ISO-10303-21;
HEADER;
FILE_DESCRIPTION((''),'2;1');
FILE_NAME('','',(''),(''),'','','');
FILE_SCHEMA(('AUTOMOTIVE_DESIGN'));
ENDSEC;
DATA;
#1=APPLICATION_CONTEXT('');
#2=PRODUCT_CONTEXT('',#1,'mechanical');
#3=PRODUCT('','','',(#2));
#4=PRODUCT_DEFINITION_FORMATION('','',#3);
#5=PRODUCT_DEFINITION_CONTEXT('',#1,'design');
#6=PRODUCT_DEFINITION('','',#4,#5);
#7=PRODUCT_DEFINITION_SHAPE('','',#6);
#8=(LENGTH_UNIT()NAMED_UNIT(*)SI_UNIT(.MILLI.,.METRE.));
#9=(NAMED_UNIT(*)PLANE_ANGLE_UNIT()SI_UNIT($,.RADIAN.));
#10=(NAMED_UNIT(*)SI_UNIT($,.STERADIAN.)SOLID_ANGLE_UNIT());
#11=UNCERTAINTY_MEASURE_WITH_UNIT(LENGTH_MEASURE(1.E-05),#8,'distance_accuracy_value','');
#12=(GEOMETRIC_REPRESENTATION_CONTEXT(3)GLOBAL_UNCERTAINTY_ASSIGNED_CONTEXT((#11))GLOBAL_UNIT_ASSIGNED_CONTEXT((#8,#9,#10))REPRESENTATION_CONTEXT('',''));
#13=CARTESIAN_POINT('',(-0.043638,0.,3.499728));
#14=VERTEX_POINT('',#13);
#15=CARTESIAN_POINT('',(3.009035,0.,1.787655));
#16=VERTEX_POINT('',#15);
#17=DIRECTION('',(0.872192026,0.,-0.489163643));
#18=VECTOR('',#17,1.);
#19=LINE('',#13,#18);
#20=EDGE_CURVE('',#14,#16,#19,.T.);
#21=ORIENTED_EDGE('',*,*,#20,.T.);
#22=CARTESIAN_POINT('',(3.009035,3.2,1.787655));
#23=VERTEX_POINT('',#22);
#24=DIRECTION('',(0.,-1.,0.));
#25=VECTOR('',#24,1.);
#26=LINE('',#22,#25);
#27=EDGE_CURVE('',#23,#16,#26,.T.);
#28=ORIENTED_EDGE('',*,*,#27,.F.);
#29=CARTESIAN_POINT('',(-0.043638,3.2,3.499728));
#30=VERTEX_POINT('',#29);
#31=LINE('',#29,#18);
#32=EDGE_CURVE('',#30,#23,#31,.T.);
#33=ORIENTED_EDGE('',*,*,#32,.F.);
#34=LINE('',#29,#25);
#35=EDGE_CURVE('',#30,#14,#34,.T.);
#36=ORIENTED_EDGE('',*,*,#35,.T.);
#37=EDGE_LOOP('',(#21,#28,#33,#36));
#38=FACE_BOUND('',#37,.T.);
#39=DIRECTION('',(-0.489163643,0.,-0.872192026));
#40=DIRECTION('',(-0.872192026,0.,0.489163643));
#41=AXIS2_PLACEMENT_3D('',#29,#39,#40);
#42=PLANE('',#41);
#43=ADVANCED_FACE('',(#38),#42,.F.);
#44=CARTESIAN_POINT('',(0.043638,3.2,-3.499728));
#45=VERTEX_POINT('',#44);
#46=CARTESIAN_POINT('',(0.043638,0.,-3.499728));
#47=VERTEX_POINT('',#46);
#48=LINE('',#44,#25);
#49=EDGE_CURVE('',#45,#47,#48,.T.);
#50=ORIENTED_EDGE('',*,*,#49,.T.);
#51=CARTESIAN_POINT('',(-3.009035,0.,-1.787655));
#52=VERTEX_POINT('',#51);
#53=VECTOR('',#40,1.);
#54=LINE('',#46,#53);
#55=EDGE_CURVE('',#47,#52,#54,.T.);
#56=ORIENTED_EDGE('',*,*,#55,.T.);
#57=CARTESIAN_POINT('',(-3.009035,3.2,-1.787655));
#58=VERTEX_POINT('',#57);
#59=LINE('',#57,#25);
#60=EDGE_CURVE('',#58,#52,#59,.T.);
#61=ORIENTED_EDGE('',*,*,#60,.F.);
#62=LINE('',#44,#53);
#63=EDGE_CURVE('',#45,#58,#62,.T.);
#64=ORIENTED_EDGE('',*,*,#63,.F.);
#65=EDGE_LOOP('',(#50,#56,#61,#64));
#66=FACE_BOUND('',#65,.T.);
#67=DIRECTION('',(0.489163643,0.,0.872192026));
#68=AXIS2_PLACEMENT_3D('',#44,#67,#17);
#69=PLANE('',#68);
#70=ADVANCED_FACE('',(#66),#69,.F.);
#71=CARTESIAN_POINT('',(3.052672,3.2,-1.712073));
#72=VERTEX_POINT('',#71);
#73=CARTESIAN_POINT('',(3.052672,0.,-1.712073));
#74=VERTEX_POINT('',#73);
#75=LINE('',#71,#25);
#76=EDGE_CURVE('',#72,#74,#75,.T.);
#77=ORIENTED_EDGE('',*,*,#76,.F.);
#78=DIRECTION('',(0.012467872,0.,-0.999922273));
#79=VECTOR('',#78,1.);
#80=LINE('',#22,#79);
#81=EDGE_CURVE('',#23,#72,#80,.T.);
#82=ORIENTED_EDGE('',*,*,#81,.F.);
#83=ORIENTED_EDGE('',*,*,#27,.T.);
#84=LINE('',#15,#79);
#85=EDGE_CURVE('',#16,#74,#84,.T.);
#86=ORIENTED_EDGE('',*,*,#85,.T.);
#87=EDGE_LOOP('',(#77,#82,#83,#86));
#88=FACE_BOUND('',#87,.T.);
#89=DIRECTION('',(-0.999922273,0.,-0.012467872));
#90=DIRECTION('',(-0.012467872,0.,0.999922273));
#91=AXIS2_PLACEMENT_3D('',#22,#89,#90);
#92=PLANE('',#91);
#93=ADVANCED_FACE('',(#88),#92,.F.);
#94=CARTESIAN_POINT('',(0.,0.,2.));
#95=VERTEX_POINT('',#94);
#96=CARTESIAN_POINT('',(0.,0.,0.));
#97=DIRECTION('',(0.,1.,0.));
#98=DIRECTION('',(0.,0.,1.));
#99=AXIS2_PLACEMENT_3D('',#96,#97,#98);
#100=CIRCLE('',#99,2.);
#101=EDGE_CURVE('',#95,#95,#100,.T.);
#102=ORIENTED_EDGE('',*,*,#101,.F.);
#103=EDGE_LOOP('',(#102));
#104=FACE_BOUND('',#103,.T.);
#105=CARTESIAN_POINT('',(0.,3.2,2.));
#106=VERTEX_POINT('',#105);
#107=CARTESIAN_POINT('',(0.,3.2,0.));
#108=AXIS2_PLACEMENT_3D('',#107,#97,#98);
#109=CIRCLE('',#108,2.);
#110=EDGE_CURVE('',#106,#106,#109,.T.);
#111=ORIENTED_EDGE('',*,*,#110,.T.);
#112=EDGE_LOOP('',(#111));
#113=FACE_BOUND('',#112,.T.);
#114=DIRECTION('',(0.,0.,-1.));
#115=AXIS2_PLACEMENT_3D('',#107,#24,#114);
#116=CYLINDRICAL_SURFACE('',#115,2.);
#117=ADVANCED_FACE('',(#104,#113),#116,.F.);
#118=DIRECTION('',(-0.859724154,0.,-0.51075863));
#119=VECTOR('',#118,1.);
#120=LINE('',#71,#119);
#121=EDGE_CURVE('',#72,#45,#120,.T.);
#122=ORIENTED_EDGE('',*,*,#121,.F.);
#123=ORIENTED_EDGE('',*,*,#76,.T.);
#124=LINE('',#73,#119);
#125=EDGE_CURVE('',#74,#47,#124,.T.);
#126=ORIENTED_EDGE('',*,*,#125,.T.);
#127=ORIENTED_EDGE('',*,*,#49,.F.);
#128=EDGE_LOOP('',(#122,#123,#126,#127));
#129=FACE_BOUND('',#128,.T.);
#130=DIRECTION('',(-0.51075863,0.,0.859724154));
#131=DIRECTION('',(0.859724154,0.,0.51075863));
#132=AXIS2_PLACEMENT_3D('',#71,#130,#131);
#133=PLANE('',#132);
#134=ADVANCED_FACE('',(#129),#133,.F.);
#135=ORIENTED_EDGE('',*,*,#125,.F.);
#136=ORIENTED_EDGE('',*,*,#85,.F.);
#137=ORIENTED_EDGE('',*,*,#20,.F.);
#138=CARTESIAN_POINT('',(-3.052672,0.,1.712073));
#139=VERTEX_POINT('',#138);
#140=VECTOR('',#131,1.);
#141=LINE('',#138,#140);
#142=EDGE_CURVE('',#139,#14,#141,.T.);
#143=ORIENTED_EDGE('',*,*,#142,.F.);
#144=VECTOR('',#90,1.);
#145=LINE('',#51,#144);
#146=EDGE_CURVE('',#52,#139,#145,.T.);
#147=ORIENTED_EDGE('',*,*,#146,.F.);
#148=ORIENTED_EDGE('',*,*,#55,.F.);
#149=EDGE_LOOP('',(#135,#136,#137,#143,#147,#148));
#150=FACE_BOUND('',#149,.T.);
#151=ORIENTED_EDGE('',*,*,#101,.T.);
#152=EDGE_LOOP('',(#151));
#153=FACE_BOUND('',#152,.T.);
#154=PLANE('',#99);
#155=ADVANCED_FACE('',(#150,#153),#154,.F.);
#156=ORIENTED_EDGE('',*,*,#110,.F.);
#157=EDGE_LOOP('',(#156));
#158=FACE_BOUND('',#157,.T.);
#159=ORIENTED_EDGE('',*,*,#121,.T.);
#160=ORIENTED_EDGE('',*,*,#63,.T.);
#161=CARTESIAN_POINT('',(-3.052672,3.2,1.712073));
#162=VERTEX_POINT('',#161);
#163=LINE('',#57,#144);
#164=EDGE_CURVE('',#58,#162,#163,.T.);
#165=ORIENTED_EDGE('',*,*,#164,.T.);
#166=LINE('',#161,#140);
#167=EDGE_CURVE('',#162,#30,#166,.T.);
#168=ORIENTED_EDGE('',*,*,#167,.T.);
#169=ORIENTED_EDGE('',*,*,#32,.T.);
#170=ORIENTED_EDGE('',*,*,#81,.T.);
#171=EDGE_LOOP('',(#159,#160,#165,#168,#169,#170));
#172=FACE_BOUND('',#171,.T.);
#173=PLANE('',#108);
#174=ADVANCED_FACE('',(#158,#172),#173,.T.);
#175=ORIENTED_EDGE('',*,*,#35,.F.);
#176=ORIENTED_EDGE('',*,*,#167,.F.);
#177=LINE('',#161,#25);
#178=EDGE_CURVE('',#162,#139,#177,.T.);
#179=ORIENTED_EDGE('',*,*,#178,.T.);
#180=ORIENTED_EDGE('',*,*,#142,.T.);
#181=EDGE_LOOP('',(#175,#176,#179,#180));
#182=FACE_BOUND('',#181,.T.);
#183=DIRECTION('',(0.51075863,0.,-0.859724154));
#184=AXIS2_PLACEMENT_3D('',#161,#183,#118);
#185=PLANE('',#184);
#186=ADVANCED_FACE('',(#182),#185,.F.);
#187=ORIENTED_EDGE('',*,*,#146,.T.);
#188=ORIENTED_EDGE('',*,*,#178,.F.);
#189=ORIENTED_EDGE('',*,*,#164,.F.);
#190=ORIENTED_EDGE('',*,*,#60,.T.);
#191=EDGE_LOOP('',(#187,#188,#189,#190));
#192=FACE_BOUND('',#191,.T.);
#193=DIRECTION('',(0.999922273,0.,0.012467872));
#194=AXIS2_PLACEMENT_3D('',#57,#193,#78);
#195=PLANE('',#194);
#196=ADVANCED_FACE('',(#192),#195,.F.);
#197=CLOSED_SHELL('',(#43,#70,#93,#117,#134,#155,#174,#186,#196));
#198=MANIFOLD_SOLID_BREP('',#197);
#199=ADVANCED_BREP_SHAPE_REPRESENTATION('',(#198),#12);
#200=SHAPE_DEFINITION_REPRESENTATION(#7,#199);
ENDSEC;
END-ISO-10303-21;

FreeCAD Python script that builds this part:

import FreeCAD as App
import Part
import Sketcher
Q = App.Units.Quantity

doc = App.newDocument("Part")
params = doc.addObject("Spreadsheet::Sheet", "Params")
for row, (alias, value) in enumerate([
    ("sketch1_diameter", "4 mm"),
    ("sketch1_length", "3.5 mm"),
    ("pad1_length", "3.2 mm"),
], start=1):
    params.set(f"A{row}", alias)
    params.set(f"B{row}", "=" + value)
    params.setAlias(f"B{row}", alias)

body = doc.addObject("PartDesign::Body", "Body")

# Sketch on XZ plane
sketch1 = body.newObject("Sketcher::SketchObject", "Sketch")
sketch1.AttachmentSupport = (doc.getObject("XZ_Plane"), [""])
sketch1.MapMode = "FlatFace"
sketch1.addGeometry([
    Part.LineSegment(App.Vector(3, 1.8, 0), App.Vector(3.1, -1.7, 0)),  # 0
    Part.LineSegment(App.Vector(3.1, -1.7, 0), App.Vector(0, -3.5, 0)),  # 1
    Part.LineSegment(App.Vector(0, -3.5, 0), App.Vector(-3, -1.8, 0)),  # 2
    Part.LineSegment(App.Vector(-3, -1.8, 0), App.Vector(-3.1, 1.7, 0)),  # 3
    Part.LineSegment(App.Vector(-3.1, 1.7, 0), App.Vector(0, 3.5, 0)),  # 4
    Part.LineSegment(App.Vector(0, 3.5, 0), App.Vector(3, 1.8, 0)),  # 5
    Part.Circle(App.Vector(0, 0, 0), App.Vector(0, 0, 1), 2),  # 6
], False)
sketch1.addConstraint([
    Sketcher.Constraint("Coincident", 0, 2, 1, 1),
    Sketcher.Constraint("Coincident", 1, 2, 2, 1),
    Sketcher.Constraint("Coincident", 2, 2, 3, 1),
    Sketcher.Constraint("Coincident", 3, 2, 4, 1),
    Sketcher.Constraint("Coincident", 4, 2, 5, 1),
    Sketcher.Constraint("Coincident", 5, 2, 0, 1),
    Sketcher.Constraint("Coincident", 6, 3, -1, 1),
    Sketcher.Constraint("Symmetric", 0, 2, 3, 2, -1, 1),
    Sketcher.Constraint("Symmetric", 1, 2, 4, 2, -1, 1),
    Sketcher.Constraint("Symmetric", 2, 2, 5, 2, -1, 1),
    Sketcher.Constraint("Equal", 0, 1),
    Sketcher.Constraint("Equal", 1, 2),
    Sketcher.Constraint("Diameter", 6, Q("4 mm")),
    Sketcher.Constraint("Distance", 0, Q("3.5 mm")),
    Sketcher.Constraint("DistanceY", 1, 2, 3, 2, Q("5.211801 mm")),
    Sketcher.Constraint("DistanceX", 3, 2, 1, 2, Q("3.09631 mm")),
    Sketcher.Constraint("DistanceX", -1, 1, 0, 2, Q("3.052672 mm")),
])
sketch1.setExpression("Constraints[12]", "Params.sketch1_diameter")
sketch1.setExpression("Constraints[13]", "Params.sketch1_length")
pad1 = body.newObject("PartDesign::Pad", "Pad")
pad1.Profile = sketch1
pad1.setExpression("Length", "Params.pad1_length")
pad1.Reversed = True

doc.recompute()
